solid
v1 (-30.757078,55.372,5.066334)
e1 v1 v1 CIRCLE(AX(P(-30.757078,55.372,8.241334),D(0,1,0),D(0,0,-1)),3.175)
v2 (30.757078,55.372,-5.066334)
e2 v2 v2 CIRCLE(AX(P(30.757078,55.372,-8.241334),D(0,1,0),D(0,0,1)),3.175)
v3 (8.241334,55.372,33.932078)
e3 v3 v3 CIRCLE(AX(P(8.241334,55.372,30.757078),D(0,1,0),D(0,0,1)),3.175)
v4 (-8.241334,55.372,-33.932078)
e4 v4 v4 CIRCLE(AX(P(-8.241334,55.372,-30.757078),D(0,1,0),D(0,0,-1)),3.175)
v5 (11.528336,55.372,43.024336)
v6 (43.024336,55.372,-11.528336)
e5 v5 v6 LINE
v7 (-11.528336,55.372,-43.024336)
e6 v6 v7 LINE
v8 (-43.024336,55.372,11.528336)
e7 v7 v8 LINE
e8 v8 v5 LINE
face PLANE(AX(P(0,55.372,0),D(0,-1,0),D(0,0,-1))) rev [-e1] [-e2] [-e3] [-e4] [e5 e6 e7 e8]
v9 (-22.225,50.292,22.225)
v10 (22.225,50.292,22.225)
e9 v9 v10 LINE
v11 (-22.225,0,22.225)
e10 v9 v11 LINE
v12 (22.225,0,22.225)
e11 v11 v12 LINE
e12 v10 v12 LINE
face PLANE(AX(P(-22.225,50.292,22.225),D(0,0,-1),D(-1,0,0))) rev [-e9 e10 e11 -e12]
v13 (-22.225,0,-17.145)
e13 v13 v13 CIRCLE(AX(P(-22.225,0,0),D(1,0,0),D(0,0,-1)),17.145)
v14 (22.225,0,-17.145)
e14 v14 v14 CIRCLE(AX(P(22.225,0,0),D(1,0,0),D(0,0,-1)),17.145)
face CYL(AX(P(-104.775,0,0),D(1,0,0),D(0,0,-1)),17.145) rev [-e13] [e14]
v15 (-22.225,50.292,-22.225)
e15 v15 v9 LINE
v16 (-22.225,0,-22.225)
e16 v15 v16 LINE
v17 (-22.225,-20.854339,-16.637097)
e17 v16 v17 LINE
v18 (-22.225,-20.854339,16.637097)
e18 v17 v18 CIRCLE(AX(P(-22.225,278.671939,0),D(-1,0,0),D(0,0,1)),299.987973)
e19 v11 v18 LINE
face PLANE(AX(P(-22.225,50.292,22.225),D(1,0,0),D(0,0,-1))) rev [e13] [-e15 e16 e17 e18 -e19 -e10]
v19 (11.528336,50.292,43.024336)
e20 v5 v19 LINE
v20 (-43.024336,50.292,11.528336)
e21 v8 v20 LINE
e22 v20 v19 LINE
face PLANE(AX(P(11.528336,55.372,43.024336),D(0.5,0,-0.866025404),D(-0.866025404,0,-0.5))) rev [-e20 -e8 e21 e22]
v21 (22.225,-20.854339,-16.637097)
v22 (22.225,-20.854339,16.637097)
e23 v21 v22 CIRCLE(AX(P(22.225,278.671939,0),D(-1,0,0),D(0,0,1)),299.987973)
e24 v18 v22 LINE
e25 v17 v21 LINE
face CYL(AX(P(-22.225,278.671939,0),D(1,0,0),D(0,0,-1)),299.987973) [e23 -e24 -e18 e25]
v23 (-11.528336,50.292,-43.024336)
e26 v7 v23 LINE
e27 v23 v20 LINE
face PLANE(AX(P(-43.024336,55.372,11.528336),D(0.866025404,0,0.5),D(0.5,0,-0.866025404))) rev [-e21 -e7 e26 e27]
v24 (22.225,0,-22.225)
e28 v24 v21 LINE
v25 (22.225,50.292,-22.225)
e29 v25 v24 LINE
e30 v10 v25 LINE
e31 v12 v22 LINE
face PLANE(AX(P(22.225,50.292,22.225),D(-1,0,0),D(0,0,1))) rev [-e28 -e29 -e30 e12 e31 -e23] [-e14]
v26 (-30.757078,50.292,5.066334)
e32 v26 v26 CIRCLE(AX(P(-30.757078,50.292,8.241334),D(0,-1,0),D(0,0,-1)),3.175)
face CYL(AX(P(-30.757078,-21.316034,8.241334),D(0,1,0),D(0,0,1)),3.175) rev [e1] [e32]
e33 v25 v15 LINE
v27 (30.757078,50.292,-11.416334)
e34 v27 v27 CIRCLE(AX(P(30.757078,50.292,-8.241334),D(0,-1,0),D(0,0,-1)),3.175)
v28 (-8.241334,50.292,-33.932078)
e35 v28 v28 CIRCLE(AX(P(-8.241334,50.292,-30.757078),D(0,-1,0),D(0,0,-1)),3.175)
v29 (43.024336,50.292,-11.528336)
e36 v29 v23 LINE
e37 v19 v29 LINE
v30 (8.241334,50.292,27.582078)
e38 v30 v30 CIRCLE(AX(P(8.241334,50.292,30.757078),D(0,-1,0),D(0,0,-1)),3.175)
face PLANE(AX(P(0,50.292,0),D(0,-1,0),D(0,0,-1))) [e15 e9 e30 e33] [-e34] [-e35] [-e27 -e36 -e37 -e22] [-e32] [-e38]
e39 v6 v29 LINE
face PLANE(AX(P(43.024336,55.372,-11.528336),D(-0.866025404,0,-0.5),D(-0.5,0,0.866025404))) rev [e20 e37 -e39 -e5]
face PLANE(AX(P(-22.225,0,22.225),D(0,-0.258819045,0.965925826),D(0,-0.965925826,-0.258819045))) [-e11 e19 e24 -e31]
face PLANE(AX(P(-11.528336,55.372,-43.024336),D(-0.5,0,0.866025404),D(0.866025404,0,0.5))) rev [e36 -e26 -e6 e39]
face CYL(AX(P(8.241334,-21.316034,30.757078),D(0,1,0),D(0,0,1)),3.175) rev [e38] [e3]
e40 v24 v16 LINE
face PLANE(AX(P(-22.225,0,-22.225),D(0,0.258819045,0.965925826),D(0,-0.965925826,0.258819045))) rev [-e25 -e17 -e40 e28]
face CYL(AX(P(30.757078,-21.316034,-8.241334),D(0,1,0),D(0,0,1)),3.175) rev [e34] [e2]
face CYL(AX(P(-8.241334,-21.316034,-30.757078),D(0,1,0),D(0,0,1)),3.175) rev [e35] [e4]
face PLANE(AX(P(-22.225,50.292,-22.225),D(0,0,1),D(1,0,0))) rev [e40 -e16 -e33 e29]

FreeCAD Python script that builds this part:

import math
import FreeCAD as App
import Part
import Sketcher

V = App.Vector
Q = App.Units.Quantity

doc = App.newDocument("Part")
body = doc.addObject("PartDesign::Body", "Body")

# Sketch on XZ plane
sketch1 = doc.addObject("Sketcher::SketchObject", "Sketch")
body.addObject(sketch1)
sketch1.AttachmentSupport = (doc.XZ_Plane, [""])
sketch1.MapMode = "FlatFace"
sketch1.addGeometry(Part.LineSegment(V(-22, -22, 0), V(-22, 22, 0)), False)
sketch1.addGeometry(Part.LineSegment(V(-22, 22, 0), V(22, 22, 0)), False)
sketch1.addGeometry(Part.LineSegment(V(22, 22, 0), V(22, -22, 0)), False)
sketch1.addGeometry(Part.LineSegment(V(22, -22, 0), V(-22, -22, 0)), False)
sketch1.addConstraint(Sketcher.Constraint("Coincident", 0, 2, 1, 1))
sketch1.addConstraint(Sketcher.Constraint("Coincident", 1, 2, 2, 1))
sketch1.addConstraint(Sketcher.Constraint("Coincident", 2, 2, 3, 1))
sketch1.addConstraint(Sketcher.Constraint("Coincident", 3, 2, 0, 1))
sketch1.addConstraint(Sketcher.Constraint("Vertical", 0))
sketch1.addConstraint(Sketcher.Constraint("Horizontal", 1))
sketch1.addConstraint(Sketcher.Constraint("Vertical", 2))
sketch1.addConstraint(Sketcher.Constraint("Horizontal", 3))
sketch1.addConstraint(Sketcher.Constraint("Symmetric", 0, 2, 2, 2, -1, 1))
sketch1.addConstraint(Sketcher.Constraint("Equal", 3, 0))
sketch1.addConstraint(Sketcher.Constraint("DistanceX", 1, 1, 1, 2, Q("1.75 in")))
pad1 = doc.addObject("PartDesign::Pad", "Pad")
body.addObject(pad1)
pad1.Profile = sketch1
pad1.Length = Q("1.98 in")
pad1.Reversed = True

# Sketch on YZ plane
sketch2 = doc.addObject("Sketcher::SketchObject", "Sketch001")
body.addObject(sketch2)
sketch2.AttachmentSupport = (doc.YZ_Plane, [""])
sketch2.MapMode = "FlatFace"
sketch2.AttachmentOffset = App.Placement(V(0, 0, 0.875 * 25.4), App.Rotation())
sketch2.addGeometry(Part.LineSegment(V(0, 22, 0), V(-21, 17, 0)), False)
sketch2.addGeometry(Part.ArcOfCircle(Part.Circle(V(279, 0, 0), V(0, 0, 1), 300), math.radians(176.82), math.radians(183.18)), False)
sketch2.addGeometry(Part.LineSegment(V(-21, -17, 0), V(0, -22, 0)), False)
sketch2.addGeometry(Part.LineSegment(V(0, -22, 0), V(0, 22, 0)), False)
sketch2.addConstraint(Sketcher.Constraint("Coincident", 0, 2, 1, 1))
sketch2.addConstraint(Sketcher.Constraint("Coincident", 1, 2, 2, 1))
sketch2.addConstraint(Sketcher.Constraint("Coincident", 2, 2, 3, 1))
sketch2.addConstraint(Sketcher.Constraint("Coincident", 3, 2, 0, 1))
sketch2.addConstraint(Sketcher.Constraint("Vertical", 3))
sketch2.addConstraint(Sketcher.Constraint("Symmetric", 2, 2, 3, 2, -1, 1))
sketch2.addConstraint(Sketcher.Constraint("Symmetric", 0, 2, 1, 2, -1))
sketch2.addConstraint(Sketcher.Constraint("Angle", 0, Q("-165 deg")))
sketch2.addConstraint(Sketcher.Constraint("DistanceY", 3, 1, 3, 2, Q("1.75 in")))
sketch2.addConstraint(Sketcher.Constraint("Distance", 0, Q("0.85 in")))
sketch2.addConstraint(Sketcher.Constraint("Radius", 1, 299.987974))
pad2 = doc.addObject("PartDesign::Pad", "Pad001")
body.addObject(pad2)
pad2.Profile = sketch2
pad2.Length = Q("1.75 in")
pad2.Reversed = True

# Sketch on YZ plane
sketch3 = doc.addObject("Sketcher::SketchObject", "Sketch002")
body.addObject(sketch3)
sketch3.AttachmentSupport = (doc.YZ_Plane, [""])
sketch3.MapMode = "FlatFace"
sketch3.AttachmentOffset = App.Placement(V(0, 0, 0.875 * 25.4), App.Rotation())
sketch3.addGeometry(Part.Circle(V(0, 0, 0), V(0, 0, 1), 17), False)
sketch3.addConstraint(Sketcher.Constraint("Coincident", 0, 3, -1, 1))
sketch3.addConstraint(Sketcher.Constraint("Diameter", 0, Q("1.35 in")))
pocket1 = doc.addObject("PartDesign::Pocket", "Pocket")
body.addObject(pocket1)
pocket1.Profile = sketch3
pocket1.Length = Q("5 in")

# Sketch on XZ plane
sketch4 = doc.addObject("Sketcher::SketchObject", "Sketch003")
body.addObject(sketch4)
sketch4.AttachmentSupport = (doc.XZ_Plane, [""])
sketch4.MapMode = "FlatFace"
sketch4.AttachmentOffset = App.Placement(V(0, 0, -1.98 * 25.4), App.Rotation())
sketch4.addGeometry(Part.LineSegment(V(12, 43, 0), V(43, -12, 0)), False)
sketch4.addGeometry(Part.LineSegment(V(43, -12, 0), V(-12, -43, 0)), False)
sketch4.addGeometry(Part.LineSegment(V(-12, -43, 0), V(-43, 12, 0)), False)
sketch4.addGeometry(Part.LineSegment(V(-43, 12, 0), V(12, 43, 0)), False)
sketch4.addConstraint(Sketcher.Constraint("Coincident", 0, 2, 1, 1))
sketch4.addConstraint(Sketcher.Constraint("Coincident", 1, 2, 2, 1))
sketch4.addConstraint(Sketcher.Constraint("Coincident", 2, 2, 3, 1))
sketch4.addConstraint(Sketcher.Constraint("Coincident", 3, 2, 0, 1))
sketch4.addConstraint(Sketcher.Constraint("Symmetric", 0, 2, 2, 2, -1, 1))
sketch4.addConstraint(Sketcher.Constraint("Symmetric", 1, 2, 3, 2, -1, 1))
sketch4.addConstraint(Sketcher.Constraint("Perpendicular", 0, 1))
sketch4.addConstraint(Sketcher.Constraint("Equal", 0, 1))
sketch4.addConstraint(Sketcher.Constraint("Angle", 0, Q("-60 deg")))
sketch4.addConstraint(Sketcher.Constraint("Distance", 0, Q("2.48 in")))
pad3 = doc.addObject("PartDesign::Pad", "Pad002")
body.addObject(pad3)
pad3.Profile = sketch4
pad3.Length = Q("0.2 in")
pad3.Reversed = True

# Sketch on XZ plane
sketch5 = doc.addObject("Sketcher::SketchObject", "Sketch004")
body.addObject(sketch5)
sketch5.AttachmentSupport = (doc.XZ_Plane, [""])
sketch5.MapMode = "FlatFace"
sketch5.AttachmentOffset = App.Placement(V(0, 0, -2.18 * 25.4), App.Rotation())
sketch5.addGeometry(Part.Circle(V(30.8, -8.2, 0), V(0, 0, 1), 3.2), False)
sketch5.addGeometry(Part.Circle(V(8.2, 30.8, 0), V(0, 0, 1), 3.2), False)
sketch5.addGeometry(Part.Circle(V(-8.2, -30.8, 0), V(0, 0, 1), 3.2), False)
sketch5.addGeometry(Part.Circle(V(-30.8, 8.2, 0), V(0, 0, 1), 3.2), False)
sketch5.addConstraint(Sketcher.Constraint("Equal", 0, 1))
sketch5.addConstraint(Sketcher.Constraint("Equal", 1, 2))
sketch5.addConstraint(Sketcher.Constraint("Equal", 2, 3))
sketch5.addConstraint(Sketcher.Constraint("Symmetric", 1, 3, 2, 3, -1, 1))
sketch5.addConstraint(Sketcher.Constraint("Symmetric", 0, 3, 3, 3, -1, 1))
sketch5.addConstraint(Sketcher.Constraint("Diameter", 0, Q("0.25 in")))
sketch5.addConstraint(Sketcher.Constraint("DistanceX", -1, 1, 0, 3, 30.757078))
sketch5.addConstraint(Sketcher.Constraint("DistanceY", -1, 1, 1, 3, 30.757078))
sketch5.addConstraint(Sketcher.Constraint("DistanceX", 2, 3, 1, 3, 16.482668))
sketch5.addConstraint(Sketcher.Constraint("DistanceY", 0, 3, 3, 3, 16.482668))
pocket2 = doc.addObject("PartDesign::Pocket", "Pocket001")
body.addObject(pocket2)
pocket2.Profile = sketch5
pocket2.Type = "ThroughAll"
pocket2.Reversed = True

doc.recompute()
